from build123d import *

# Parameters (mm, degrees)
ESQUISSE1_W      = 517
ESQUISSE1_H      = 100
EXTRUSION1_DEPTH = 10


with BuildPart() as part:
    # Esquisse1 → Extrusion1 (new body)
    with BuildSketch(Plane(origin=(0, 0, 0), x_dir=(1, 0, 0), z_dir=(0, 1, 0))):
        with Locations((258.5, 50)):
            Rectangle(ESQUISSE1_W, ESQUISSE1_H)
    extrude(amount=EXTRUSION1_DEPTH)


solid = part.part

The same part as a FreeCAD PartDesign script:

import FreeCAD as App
import Part
import Sketcher
from FreeCAD import Vector
Q = App.Units.Quantity


def add_polygon(sketch, points):
    """Adds a closed chain of lines whose ends are joined by coincident constraints."""
    first, n = sketch.GeometryCount, len(points)
    for a, b in zip(points, points[1:] + points[:1]):
        sketch.addGeometry(Part.LineSegment(App.Vector(*a, 0), App.Vector(*b, 0)), False)
    for i in range(n):
        sketch.addConstraint(Sketcher.Constraint("Coincident", first + i, 2, first + (i + 1) % n, 1))

doc = App.newDocument("Part")
params = doc.addObject("Spreadsheet::Sheet", "Params")
for row, (alias, value) in enumerate([
    ("sketch1_width", "517 mm"),
    ("sketch1_height", "100 mm"),
    ("pad1_length", "10 mm"),
], start=1):
    params.set(f"A{row}", alias)
    params.set(f"B{row}", "=" + value)
    params.setAlias(f"B{row}", alias)

body = doc.addObject("PartDesign::Body", "Body")

# Sketch on XZ plane
sketch1 = doc.addObject("Sketcher::SketchObject", "Sketch")
body.addObject(sketch1)
sketch1.AttachmentSupport = (doc.XZ_Plane, [""])
sketch1.MapMode = "FlatFace"
add_polygon(sketch1, [(0, -100), (0, 0), (517, 0), (517, -100)])  # lines 0-3
sketch1.addConstraint(Sketcher.Constraint("Vertical", 0))
sketch1.addConstraint(Sketcher.Constraint("Horizontal", 1))
sketch1.addConstraint(Sketcher.Constraint("Vertical", 2))
sketch1.addConstraint(Sketcher.Constraint("Horizontal", 3))
sketch1.addConstraint(Sketcher.Constraint("Coincident", 0, 2, -1, 1))
sketch1.addConstraint(Sketcher.Constraint("DistanceX", 1, 1, 1, 2, Q("517 mm")))
sketch1.addConstraint(Sketcher.Constraint("DistanceY", 0, 1, 0, 2, Q("100 mm")))
sketch1.setExpression("Constraints[9]", "Params.sketch1_width")
sketch1.setExpression("Constraints[10]", "Params.sketch1_height")
pad1 = doc.addObject("PartDesign::Pad", "Pad")
body.addObject(pad1)
pad1.Profile = sketch1
pad1.setExpression("Length", "Params.pad1_length")
pad1.Reversed = True

doc.recompute()
